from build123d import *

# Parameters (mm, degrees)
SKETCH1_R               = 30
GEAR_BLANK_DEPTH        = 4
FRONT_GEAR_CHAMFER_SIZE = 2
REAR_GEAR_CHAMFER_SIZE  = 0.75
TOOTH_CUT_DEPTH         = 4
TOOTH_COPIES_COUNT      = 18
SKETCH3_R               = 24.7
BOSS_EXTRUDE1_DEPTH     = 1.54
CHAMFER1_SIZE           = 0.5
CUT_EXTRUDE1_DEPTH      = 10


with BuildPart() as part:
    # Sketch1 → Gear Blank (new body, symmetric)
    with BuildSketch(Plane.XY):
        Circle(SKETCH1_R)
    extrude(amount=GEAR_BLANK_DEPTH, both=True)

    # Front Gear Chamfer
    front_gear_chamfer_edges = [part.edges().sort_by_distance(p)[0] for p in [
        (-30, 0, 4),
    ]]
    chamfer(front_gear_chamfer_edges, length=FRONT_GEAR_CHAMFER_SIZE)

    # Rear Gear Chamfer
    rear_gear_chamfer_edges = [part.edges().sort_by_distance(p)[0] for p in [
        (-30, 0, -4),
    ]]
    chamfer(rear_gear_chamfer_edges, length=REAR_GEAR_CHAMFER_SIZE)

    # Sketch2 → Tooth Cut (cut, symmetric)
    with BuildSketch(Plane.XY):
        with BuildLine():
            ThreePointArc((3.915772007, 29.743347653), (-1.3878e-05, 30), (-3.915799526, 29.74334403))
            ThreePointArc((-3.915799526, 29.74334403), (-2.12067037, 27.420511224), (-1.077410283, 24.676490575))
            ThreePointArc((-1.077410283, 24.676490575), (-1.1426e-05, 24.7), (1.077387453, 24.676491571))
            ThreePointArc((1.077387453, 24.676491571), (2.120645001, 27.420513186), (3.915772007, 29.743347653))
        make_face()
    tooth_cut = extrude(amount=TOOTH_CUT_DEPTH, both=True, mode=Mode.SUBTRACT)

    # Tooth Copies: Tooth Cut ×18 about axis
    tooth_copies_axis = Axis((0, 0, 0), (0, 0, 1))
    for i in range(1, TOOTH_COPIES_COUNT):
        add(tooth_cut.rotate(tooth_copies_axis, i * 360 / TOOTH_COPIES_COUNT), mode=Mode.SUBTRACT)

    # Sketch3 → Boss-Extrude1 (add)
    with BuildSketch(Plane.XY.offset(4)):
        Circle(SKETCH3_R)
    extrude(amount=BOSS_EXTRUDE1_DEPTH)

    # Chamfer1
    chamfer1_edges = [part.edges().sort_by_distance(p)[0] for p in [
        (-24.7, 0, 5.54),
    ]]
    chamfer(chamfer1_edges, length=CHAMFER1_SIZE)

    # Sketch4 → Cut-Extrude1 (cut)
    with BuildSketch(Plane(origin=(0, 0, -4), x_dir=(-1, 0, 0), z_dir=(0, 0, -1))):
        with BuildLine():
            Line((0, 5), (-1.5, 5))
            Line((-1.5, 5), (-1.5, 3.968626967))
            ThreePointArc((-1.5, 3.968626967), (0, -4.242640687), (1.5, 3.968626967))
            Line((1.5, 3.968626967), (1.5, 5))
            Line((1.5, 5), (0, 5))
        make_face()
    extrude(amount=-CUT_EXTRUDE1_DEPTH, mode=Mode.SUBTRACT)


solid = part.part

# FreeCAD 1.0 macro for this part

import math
import FreeCAD as App
import Part
import Sketcher
from FreeCAD import Vector


def edges_at(feature, points):
    """Names of the edges that pass closest to the given points."""
    edges = feature.Shape.Edges
    near = lambda p: min(range(len(edges)), key=lambda i: edges[i].distToShape(Part.Vertex(*p))[0])
    return sorted({f"Edge{near(p) + 1}" for p in points})

doc = App.newDocument("Part")
body = doc.addObject("PartDesign::Body", "Body")

# Sketch on XY plane
sketch1 = body.newObject("Sketcher::SketchObject", "Sketch")
sketch1.AttachmentSupport = (doc.getObject("XY_Plane"), [""])
sketch1.MapMode = "FlatFace"
sketch1.addGeometry(Part.Circle(Vector(0, 0, 0), Vector(0, 0, 1), 30), False)
sketch1.addConstraint([
    Sketcher.Constraint("Coincident", 0, 3, -1, 1),
    Sketcher.Constraint("Diameter", 0, 60.0),
])
pad1 = body.newObject("PartDesign::Pad", "Pad")
pad1.Profile = sketch1
pad1.Length = 8
pad1.Midplane = True
doc.recompute()

chamfer = body.newObject("PartDesign::Chamfer", "Chamfer")
chamfer.Base = (pad1, edges_at(pad1, [(-30, 0, 4)]))
chamfer.Size = 2
doc.recompute()

chamfer2 = body.newObject("PartDesign::Chamfer", "Chamfer001")
chamfer2.Base = (chamfer, edges_at(chamfer, [(-30, 0, -4)]))
chamfer2.Size = 0.75

# Sketch on XY plane
sketch2 = body.newObject("Sketcher::SketchObject", "Sketch001")
sketch2.AttachmentSupport = (doc.getObject("XY_Plane"), [""])
sketch2.MapMode = "FlatFace"
sketch2.addGeometry([
    Part.ArcOfCircle(Part.Circle(Vector(0, 0, 0), Vector(0, 0, 1), 30), math.radians(82.500027), math.radians(97.500026)),
    Part.ArcOfCircle(Part.Circle(Vector(-10.845032, 22.533231, 0), Vector(0, 0, 1), 10), math.radians(12.375988), math.radians(46.138042)),
    Part.ArcOfCircle(Part.Circle(Vector(0, 0, 0), Vector(0, 0, 1), 24.7), math.radians(87.500026), math.radians(92.500026)),
    Part.ArcOfCircle(Part.Circle(Vector(10.845011, 22.533241, 0), Vector(0, 0, 1), 10), math.radians(133.862011), math.radians(167.624065)),
], False)
sketch2.addConstraint([
    Sketcher.Constraint("Coincident", 0, 2, 1, 2),
    Sketcher.Constraint("Coincident", 1, 1, 2, 2),
    Sketcher.Constraint("Coincident", 2, 1, 3, 2),
    Sketcher.Constraint("Coincident", 3, 1, 0, 1),
    Sketcher.Constraint("Coincident", 0, 3, -1, 1),
    Sketcher.Constraint("Coincident", 2, 3, -1, 1),
    Sketcher.Constraint("Radius", 0, 30.0),
    Sketcher.Constraint("Radius", 1, 10.0),
    Sketcher.Constraint("Radius", 3, 10.0),
    Sketcher.Constraint("Radius", 2, 24.7),
    Sketcher.Constraint("DistanceX", 0, 2, -1, 1, 3.9158),
    Sketcher.Constraint("DistanceY", -1, 1, 1, 3, 22.533231),
    Sketcher.Constraint("DistanceX", -1, 1, 3, 3, 10.845011),
    Sketcher.Constraint("DistanceY", -1, 1, 3, 3, 22.533241),
])
pocket1 = body.newObject("PartDesign::Pocket", "Pocket")
pocket1.Profile = sketch2
pocket1.Length = 8
pocket1.Midplane = True
doc.recompute()

polarpattern = body.newObject("PartDesign::PolarPattern", "PolarPattern")
polarpattern.Originals = [pocket1]
polarpattern.Axis = (doc.getObject("Z_Axis"), [""])
polarpattern.Angle = 360
polarpattern.Occurrences = 18
body.Tip = polarpattern

# Sketch on XY plane
sketch3 = body.newObject("Sketcher::SketchObject", "Sketch002")
sketch3.AttachmentSupport = (doc.getObject("XY_Plane"), [""])
sketch3.MapMode = "FlatFace"
sketch3.AttachmentOffset = App.Placement(Vector(0, 0, 4), App.Rotation())
sketch3.addGeometry(Part.Circle(Vector(0, 0, 0), Vector(0, 0, 1), 24.7), False)
sketch3.addConstraint([
    Sketcher.Constraint("Coincident", 0, 3, -1, 1),
    Sketcher.Constraint("Diameter", 0, 49.4),
])
pad2 = body.newObject("PartDesign::Pad", "Pad001")
pad2.Profile = sketch3
pad2.Length = 1.54
doc.recompute()

chamfer3 = body.newObject("PartDesign::Chamfer", "Chamfer002")
chamfer3.Base = (pad2, edges_at(pad2, [(-24.7, 0, 5.54)]))
chamfer3.Size = 0.5

# Sketch on XY plane
sketch4 = body.newObject("Sketcher::SketchObject", "Sketch003")
sketch4.AttachmentSupport = (doc.getObject("XY_Plane"), [""])
sketch4.MapMode = "FlatFace"
sketch4.AttachmentOffset = App.Placement(Vector(0, 0, -4), App.Rotation())
sketch4.addGeometry([
    Part.LineSegment(Vector(1.5, 5, 0), Vector(1.5, 3.968627, 0)),
    Part.ArcOfCircle(Part.Circle(Vector(0, 0, 0), Vector(0, 0, 1), 4.242641), math.radians(110.704811), math.radians(429.295189)),
    Part.LineSegment(Vector(-1.5, 3.968627, 0), Vector(-1.5, 5, 0)),
    Part.LineSegment(Vector(-1.5, 5, 0), Vector(1.5, 5, 0)),
], False)
sketch4.addConstraint([
    Sketcher.Constraint("Coincident", 0, 2, 1, 2),
    Sketcher.Constraint("Coincident", 1, 1, 2, 1),
    Sketcher.Constraint("Coincident", 2, 2, 3, 1),
    Sketcher.Constraint("Coincident", 3, 2, 0, 1),
    Sketcher.Constraint("Vertical", 0),
    Sketcher.Constraint("Vertical", 2),
    Sketcher.Constraint("Horizontal", 3),
    Sketcher.Constraint("Coincident", 1, 3, -1, 1),
    Sketcher.Constraint("Horizontal", 0, 2, 1, 1),
    Sketcher.Constraint("DistanceX", 3, 1, 3, 2, 3.0),
    Sketcher.Constraint("DistanceY", -1, 1, 2, 2, 5.0),
    Sketcher.Constraint("Radius", 1, 4.242641),
])
pocket2 = body.newObject("PartDesign::Pocket", "Pocket001")
pocket2.Profile = sketch4
pocket2.Length = 10
pocket2.Reversed = True

doc.recompute()
